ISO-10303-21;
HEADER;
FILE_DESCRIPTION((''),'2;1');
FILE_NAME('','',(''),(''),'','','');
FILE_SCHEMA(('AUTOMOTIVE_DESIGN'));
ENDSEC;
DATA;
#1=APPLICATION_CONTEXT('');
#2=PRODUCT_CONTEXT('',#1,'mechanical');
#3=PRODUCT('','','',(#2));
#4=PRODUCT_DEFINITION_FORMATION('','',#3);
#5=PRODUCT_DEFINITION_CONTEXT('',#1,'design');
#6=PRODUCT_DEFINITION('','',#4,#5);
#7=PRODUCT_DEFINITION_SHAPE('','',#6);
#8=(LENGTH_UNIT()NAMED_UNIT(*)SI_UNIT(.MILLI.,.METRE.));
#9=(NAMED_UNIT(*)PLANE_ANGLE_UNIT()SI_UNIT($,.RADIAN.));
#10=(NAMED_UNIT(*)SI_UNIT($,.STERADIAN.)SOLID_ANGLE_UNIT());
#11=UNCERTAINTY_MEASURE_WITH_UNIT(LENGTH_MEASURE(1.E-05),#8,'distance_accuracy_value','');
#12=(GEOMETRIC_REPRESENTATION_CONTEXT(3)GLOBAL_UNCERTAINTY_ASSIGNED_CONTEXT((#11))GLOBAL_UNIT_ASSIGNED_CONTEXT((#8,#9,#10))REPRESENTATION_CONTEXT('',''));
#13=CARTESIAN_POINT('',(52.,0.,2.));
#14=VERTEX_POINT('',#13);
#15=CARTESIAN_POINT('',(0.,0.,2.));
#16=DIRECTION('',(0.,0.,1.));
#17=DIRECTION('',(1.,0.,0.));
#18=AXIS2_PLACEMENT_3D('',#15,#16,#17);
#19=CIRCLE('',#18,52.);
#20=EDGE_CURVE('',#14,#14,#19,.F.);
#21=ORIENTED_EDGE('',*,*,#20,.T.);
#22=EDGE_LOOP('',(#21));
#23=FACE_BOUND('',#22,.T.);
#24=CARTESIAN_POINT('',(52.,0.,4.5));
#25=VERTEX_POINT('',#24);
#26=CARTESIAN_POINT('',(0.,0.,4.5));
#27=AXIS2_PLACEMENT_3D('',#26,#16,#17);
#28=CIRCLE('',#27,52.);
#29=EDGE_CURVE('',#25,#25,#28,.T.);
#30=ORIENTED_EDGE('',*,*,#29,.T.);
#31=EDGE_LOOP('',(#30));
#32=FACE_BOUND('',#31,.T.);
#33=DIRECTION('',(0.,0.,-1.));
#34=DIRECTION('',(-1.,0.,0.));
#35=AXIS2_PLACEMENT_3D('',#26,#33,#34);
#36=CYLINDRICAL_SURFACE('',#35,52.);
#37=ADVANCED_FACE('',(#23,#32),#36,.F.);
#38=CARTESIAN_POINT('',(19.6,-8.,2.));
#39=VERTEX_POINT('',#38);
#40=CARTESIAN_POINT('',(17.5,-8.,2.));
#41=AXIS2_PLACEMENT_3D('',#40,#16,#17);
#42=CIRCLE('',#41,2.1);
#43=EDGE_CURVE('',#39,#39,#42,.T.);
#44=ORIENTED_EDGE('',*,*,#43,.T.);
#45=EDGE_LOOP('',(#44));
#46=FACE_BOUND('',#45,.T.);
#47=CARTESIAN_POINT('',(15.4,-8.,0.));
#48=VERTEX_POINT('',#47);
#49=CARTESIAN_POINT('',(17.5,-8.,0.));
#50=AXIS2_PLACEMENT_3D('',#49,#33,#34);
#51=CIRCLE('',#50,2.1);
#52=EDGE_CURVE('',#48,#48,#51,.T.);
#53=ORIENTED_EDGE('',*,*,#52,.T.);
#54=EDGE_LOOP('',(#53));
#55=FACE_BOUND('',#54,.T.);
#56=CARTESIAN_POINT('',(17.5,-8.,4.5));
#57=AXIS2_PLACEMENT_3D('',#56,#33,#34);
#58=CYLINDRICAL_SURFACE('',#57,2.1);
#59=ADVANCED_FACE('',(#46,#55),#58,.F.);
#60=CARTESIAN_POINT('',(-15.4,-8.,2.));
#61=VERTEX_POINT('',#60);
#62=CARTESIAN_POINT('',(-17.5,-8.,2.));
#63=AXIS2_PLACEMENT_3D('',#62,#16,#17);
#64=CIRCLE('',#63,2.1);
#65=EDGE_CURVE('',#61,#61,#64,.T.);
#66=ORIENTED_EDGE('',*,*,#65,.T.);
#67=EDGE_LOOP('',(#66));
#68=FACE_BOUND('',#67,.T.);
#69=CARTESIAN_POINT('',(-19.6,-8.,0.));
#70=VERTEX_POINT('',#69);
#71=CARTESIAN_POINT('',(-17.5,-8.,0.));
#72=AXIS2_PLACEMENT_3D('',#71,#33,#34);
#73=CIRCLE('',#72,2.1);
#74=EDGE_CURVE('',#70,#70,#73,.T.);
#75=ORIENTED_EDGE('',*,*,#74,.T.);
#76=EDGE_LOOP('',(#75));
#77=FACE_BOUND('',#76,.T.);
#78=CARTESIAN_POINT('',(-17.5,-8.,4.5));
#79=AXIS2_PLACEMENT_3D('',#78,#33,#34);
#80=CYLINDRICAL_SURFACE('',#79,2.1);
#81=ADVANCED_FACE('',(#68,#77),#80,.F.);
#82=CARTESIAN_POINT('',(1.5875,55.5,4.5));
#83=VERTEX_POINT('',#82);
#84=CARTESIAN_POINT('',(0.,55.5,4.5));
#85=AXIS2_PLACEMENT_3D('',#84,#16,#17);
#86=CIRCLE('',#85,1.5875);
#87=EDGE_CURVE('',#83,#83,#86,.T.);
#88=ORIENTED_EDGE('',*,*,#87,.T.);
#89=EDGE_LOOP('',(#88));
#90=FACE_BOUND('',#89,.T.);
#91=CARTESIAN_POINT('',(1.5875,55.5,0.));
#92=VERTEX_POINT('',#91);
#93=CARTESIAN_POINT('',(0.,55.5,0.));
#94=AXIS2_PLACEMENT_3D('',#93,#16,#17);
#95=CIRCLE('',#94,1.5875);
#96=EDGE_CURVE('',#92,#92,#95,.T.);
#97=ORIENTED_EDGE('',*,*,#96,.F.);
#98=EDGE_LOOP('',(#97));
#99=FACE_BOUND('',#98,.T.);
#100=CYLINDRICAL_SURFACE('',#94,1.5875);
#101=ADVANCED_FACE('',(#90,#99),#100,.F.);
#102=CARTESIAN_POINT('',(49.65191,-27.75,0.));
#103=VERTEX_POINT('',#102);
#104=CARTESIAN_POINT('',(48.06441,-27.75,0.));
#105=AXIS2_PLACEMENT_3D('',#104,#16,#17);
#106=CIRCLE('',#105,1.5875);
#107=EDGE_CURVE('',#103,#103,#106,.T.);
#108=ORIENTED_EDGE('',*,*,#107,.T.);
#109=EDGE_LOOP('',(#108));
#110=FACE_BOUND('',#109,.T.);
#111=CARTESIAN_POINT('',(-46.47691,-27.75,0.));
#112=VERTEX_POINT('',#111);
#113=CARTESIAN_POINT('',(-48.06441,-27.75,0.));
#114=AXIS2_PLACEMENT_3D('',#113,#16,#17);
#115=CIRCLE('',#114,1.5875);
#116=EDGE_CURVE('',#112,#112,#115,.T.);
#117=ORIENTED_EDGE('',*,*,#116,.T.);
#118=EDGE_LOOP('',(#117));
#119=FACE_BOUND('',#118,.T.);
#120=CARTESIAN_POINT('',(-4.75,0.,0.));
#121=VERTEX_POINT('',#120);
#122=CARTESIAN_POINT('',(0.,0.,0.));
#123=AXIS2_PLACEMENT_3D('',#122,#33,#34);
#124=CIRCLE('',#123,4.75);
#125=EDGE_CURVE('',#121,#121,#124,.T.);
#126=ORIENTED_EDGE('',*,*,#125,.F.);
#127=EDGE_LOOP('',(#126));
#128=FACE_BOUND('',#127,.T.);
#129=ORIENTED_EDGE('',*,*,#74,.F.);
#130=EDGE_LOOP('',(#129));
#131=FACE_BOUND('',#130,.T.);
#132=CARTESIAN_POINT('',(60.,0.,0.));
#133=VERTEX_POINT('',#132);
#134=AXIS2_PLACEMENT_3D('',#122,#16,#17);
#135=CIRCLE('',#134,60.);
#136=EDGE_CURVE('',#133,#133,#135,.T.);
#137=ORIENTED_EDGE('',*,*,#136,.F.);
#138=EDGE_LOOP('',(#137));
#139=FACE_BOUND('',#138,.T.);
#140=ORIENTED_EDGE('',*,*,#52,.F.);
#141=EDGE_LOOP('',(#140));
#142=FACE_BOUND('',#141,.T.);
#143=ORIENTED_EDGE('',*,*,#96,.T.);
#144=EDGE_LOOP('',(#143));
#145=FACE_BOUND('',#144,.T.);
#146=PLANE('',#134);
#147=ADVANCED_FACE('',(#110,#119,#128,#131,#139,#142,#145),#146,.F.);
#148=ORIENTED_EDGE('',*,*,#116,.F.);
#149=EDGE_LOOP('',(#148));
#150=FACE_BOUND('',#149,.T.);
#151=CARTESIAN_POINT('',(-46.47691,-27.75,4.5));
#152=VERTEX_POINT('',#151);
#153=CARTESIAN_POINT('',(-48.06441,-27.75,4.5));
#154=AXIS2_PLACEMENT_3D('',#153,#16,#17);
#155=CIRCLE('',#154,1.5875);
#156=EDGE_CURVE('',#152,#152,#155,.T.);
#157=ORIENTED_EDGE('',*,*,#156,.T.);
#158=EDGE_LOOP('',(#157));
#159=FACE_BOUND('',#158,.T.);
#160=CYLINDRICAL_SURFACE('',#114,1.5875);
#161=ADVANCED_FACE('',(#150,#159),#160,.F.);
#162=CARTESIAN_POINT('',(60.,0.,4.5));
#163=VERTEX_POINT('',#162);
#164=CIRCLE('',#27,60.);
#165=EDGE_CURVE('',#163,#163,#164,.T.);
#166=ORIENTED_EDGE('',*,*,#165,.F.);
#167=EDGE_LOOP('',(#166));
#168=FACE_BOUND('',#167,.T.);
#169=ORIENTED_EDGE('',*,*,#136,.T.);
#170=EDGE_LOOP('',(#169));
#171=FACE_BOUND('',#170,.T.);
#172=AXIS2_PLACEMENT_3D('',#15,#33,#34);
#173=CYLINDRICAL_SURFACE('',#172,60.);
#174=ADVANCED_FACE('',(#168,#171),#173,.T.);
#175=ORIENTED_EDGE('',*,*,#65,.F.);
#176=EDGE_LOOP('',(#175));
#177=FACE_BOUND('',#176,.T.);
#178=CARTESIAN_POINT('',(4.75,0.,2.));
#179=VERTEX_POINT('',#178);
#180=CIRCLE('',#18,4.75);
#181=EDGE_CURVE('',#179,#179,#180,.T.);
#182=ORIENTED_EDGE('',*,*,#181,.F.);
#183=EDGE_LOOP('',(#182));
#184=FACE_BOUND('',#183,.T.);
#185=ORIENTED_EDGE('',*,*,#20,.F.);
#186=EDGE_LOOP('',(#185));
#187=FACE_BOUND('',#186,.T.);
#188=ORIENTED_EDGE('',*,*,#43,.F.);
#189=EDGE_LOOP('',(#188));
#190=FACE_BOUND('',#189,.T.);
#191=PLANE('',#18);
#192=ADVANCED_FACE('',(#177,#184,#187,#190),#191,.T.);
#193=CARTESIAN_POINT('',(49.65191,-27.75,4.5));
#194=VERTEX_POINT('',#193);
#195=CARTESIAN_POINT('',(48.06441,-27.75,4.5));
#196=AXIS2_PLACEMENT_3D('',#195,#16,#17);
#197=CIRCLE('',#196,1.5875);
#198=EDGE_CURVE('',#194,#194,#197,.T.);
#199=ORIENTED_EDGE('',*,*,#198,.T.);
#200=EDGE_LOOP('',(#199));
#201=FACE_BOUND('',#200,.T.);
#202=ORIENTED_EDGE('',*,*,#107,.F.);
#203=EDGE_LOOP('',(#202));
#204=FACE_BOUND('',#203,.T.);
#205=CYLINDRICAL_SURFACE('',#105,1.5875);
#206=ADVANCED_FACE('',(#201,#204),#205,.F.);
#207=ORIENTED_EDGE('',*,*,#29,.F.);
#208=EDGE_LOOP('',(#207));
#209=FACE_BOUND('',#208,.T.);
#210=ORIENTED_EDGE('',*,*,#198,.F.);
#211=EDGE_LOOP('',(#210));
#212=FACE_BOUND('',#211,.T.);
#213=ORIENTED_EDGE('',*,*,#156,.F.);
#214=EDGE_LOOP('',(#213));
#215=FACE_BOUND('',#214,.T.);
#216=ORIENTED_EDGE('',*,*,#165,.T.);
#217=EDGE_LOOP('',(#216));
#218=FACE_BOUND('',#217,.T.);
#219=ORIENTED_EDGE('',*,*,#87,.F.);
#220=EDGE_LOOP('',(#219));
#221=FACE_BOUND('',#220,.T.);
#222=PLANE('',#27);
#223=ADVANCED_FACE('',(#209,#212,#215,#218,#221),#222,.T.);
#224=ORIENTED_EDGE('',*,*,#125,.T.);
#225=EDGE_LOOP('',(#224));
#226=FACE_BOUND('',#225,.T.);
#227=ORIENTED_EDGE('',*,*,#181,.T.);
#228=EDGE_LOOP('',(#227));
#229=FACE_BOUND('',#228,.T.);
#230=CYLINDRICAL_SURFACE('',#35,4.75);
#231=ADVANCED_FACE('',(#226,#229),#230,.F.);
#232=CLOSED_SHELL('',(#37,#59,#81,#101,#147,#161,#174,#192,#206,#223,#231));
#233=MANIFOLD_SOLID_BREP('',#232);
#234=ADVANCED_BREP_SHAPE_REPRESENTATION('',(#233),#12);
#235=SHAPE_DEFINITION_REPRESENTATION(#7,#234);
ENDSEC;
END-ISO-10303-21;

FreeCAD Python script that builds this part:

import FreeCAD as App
import Part
import Sketcher
from FreeCAD import Vector

doc = App.newDocument("Part")
body = doc.addObject("PartDesign::Body", "Body")

# Sketch on XY plane
sketch1 = body.newObject("Sketcher::SketchObject", "Sketch")
sketch1.AttachmentSupport = (doc.getObject("XY_Plane"), [""])
sketch1.MapMode = "FlatFace"
sketch1.addGeometry(Part.Circle(Vector(0, 0, 0), Vector(0, 0, 1), 60), False)
sketch1.addConstraint(Sketcher.Constraint("Coincident", 0, 3, -1, 1))
sketch1.addConstraint(Sketcher.Constraint("Diameter", 0, 120.0))
pad1 = body.newObject("PartDesign::Pad", "Pad")
pad1.Profile = sketch1
pad1.Length = 2

# Sketch on XY plane
sketch2 = body.newObject("Sketcher::SketchObject", "Sketch001")
sketch2.AttachmentSupport = (doc.getObject("XY_Plane"), [""])
sketch2.MapMode = "FlatFace"
sketch2.AttachmentOffset = App.Placement(Vector(0, 0, 2), App.Rotation())
sketch2.addGeometry(Part.Circle(Vector(0, 0, 0), Vector(0, 0, 1), 60), False)
sketch2.addGeometry(Part.Circle(Vector(0, 0, 0), Vector(0, 0, 1), 52), False)
sketch2.addConstraint(Sketcher.Constraint("Coincident", 0, 3, -1, 1))
sketch2.addConstraint(Sketcher.Constraint("Coincident", 1, 3, -1, 1))
sketch2.addConstraint(Sketcher.Constraint("Diameter", 0, 120.0))
sketch2.addConstraint(Sketcher.Constraint("Diameter", 1, 104.0))
pad2 = body.newObject("PartDesign::Pad", "Pad001")
pad2.Profile = sketch2
pad2.Length = 2.5

# Sketch on XY plane
sketch3 = body.newObject("Sketcher::SketchObject", "Sketch002")
sketch3.AttachmentSupport = (doc.getObject("XY_Plane"), [""])
sketch3.MapMode = "FlatFace"
sketch3.AttachmentOffset = App.Placement(Vector(0, 0, 4.5), App.Rotation())
sketch3.addGeometry(Part.Circle(Vector(0, 55.5, 0), Vector(0, 0, 1), 1.6), False)
sketch3.addGeometry(Part.Circle(Vector(48.1, -27.8, 0), Vector(0, 0, 1), 1.6), False)
sketch3.addGeometry(Part.Circle(Vector(-48.1, -27.8, 0), Vector(0, 0, 1), 1.6), False)
sketch3.addConstraint(Sketcher.Constraint("Equal", 0, 1))
sketch3.addConstraint(Sketcher.Constraint("Equal", 1, 2))
sketch3.addConstraint(Sketcher.Constraint("Symmetric", 1, 3, 2, 3, -2))
sketch3.addConstraint(Sketcher.Constraint("PointOnObject", 0, 3, -2))
sketch3.addConstraint(Sketcher.Constraint("Diameter", 0, 3.175))
sketch3.addConstraint(Sketcher.Constraint("DistanceY", -1, 1, 0, 3, 55.5))
sketch3.addConstraint(Sketcher.Constraint("DistanceY", 1, 3, -1, 1, 27.75))
sketch3.addConstraint(Sketcher.Constraint("DistanceX", -1, 1, 1, 3, 48.06441))
pocket1 = body.newObject("PartDesign::Pocket", "Pocket")
pocket1.Profile = sketch3
pocket1.Type = "ThroughAll"

# Sketch on XY plane
sketch4 = body.newObject("Sketcher::SketchObject", "Sketch003")
sketch4.AttachmentSupport = (doc.getObject("XY_Plane"), [""])
sketch4.MapMode = "FlatFace"
sketch4.addGeometry(Part.Circle(Vector(0, 0, 0), Vector(0, 0, 1), 4.8), False)
sketch4.addConstraint(Sketcher.Constraint("Coincident", 0, 3, -1, 1))
sketch4.addConstraint(Sketcher.Constraint("Diameter", 0, 9.5))
pocket2 = body.newObject("PartDesign::Pocket", "Pocket001")
pocket2.Profile = sketch4
pocket2.Type = "ThroughAll"
pocket2.Reversed = True

# Sketch on XY plane
sketch5 = body.newObject("Sketcher::SketchObject", "Sketch004")
sketch5.AttachmentSupport = (doc.getObject("XY_Plane"), [""])
sketch5.MapMode = "FlatFace"
sketch5.addGeometry(Part.Circle(Vector(17.5, -8, 0), Vector(0, 0, 1), 2.1), False)
sketch5.addGeometry(Part.Circle(Vector(-17.5, -8, 0), Vector(0, 0, 1), 2.1), False)
sketch5.addConstraint(Sketcher.Constraint("Equal", 0, 1))
sketch5.addConstraint(Sketcher.Constraint("Symmetric", 0, 3, 1, 3, -2))
sketch5.addConstraint(Sketcher.Constraint("Diameter", 0, 4.2))
sketch5.addConstraint(Sketcher.Constraint("DistanceY", 0, 3, -1, 1, 8.0))
sketch5.addConstraint(Sketcher.Constraint("DistanceX", 1, 3, 0, 3, 35.0))
pocket3 = body.newObject("PartDesign::Pocket", "Pocket002")
pocket3.Profile = sketch5
pocket3.Type = "ThroughAll"
pocket3.Reversed = True

doc.recompute()
